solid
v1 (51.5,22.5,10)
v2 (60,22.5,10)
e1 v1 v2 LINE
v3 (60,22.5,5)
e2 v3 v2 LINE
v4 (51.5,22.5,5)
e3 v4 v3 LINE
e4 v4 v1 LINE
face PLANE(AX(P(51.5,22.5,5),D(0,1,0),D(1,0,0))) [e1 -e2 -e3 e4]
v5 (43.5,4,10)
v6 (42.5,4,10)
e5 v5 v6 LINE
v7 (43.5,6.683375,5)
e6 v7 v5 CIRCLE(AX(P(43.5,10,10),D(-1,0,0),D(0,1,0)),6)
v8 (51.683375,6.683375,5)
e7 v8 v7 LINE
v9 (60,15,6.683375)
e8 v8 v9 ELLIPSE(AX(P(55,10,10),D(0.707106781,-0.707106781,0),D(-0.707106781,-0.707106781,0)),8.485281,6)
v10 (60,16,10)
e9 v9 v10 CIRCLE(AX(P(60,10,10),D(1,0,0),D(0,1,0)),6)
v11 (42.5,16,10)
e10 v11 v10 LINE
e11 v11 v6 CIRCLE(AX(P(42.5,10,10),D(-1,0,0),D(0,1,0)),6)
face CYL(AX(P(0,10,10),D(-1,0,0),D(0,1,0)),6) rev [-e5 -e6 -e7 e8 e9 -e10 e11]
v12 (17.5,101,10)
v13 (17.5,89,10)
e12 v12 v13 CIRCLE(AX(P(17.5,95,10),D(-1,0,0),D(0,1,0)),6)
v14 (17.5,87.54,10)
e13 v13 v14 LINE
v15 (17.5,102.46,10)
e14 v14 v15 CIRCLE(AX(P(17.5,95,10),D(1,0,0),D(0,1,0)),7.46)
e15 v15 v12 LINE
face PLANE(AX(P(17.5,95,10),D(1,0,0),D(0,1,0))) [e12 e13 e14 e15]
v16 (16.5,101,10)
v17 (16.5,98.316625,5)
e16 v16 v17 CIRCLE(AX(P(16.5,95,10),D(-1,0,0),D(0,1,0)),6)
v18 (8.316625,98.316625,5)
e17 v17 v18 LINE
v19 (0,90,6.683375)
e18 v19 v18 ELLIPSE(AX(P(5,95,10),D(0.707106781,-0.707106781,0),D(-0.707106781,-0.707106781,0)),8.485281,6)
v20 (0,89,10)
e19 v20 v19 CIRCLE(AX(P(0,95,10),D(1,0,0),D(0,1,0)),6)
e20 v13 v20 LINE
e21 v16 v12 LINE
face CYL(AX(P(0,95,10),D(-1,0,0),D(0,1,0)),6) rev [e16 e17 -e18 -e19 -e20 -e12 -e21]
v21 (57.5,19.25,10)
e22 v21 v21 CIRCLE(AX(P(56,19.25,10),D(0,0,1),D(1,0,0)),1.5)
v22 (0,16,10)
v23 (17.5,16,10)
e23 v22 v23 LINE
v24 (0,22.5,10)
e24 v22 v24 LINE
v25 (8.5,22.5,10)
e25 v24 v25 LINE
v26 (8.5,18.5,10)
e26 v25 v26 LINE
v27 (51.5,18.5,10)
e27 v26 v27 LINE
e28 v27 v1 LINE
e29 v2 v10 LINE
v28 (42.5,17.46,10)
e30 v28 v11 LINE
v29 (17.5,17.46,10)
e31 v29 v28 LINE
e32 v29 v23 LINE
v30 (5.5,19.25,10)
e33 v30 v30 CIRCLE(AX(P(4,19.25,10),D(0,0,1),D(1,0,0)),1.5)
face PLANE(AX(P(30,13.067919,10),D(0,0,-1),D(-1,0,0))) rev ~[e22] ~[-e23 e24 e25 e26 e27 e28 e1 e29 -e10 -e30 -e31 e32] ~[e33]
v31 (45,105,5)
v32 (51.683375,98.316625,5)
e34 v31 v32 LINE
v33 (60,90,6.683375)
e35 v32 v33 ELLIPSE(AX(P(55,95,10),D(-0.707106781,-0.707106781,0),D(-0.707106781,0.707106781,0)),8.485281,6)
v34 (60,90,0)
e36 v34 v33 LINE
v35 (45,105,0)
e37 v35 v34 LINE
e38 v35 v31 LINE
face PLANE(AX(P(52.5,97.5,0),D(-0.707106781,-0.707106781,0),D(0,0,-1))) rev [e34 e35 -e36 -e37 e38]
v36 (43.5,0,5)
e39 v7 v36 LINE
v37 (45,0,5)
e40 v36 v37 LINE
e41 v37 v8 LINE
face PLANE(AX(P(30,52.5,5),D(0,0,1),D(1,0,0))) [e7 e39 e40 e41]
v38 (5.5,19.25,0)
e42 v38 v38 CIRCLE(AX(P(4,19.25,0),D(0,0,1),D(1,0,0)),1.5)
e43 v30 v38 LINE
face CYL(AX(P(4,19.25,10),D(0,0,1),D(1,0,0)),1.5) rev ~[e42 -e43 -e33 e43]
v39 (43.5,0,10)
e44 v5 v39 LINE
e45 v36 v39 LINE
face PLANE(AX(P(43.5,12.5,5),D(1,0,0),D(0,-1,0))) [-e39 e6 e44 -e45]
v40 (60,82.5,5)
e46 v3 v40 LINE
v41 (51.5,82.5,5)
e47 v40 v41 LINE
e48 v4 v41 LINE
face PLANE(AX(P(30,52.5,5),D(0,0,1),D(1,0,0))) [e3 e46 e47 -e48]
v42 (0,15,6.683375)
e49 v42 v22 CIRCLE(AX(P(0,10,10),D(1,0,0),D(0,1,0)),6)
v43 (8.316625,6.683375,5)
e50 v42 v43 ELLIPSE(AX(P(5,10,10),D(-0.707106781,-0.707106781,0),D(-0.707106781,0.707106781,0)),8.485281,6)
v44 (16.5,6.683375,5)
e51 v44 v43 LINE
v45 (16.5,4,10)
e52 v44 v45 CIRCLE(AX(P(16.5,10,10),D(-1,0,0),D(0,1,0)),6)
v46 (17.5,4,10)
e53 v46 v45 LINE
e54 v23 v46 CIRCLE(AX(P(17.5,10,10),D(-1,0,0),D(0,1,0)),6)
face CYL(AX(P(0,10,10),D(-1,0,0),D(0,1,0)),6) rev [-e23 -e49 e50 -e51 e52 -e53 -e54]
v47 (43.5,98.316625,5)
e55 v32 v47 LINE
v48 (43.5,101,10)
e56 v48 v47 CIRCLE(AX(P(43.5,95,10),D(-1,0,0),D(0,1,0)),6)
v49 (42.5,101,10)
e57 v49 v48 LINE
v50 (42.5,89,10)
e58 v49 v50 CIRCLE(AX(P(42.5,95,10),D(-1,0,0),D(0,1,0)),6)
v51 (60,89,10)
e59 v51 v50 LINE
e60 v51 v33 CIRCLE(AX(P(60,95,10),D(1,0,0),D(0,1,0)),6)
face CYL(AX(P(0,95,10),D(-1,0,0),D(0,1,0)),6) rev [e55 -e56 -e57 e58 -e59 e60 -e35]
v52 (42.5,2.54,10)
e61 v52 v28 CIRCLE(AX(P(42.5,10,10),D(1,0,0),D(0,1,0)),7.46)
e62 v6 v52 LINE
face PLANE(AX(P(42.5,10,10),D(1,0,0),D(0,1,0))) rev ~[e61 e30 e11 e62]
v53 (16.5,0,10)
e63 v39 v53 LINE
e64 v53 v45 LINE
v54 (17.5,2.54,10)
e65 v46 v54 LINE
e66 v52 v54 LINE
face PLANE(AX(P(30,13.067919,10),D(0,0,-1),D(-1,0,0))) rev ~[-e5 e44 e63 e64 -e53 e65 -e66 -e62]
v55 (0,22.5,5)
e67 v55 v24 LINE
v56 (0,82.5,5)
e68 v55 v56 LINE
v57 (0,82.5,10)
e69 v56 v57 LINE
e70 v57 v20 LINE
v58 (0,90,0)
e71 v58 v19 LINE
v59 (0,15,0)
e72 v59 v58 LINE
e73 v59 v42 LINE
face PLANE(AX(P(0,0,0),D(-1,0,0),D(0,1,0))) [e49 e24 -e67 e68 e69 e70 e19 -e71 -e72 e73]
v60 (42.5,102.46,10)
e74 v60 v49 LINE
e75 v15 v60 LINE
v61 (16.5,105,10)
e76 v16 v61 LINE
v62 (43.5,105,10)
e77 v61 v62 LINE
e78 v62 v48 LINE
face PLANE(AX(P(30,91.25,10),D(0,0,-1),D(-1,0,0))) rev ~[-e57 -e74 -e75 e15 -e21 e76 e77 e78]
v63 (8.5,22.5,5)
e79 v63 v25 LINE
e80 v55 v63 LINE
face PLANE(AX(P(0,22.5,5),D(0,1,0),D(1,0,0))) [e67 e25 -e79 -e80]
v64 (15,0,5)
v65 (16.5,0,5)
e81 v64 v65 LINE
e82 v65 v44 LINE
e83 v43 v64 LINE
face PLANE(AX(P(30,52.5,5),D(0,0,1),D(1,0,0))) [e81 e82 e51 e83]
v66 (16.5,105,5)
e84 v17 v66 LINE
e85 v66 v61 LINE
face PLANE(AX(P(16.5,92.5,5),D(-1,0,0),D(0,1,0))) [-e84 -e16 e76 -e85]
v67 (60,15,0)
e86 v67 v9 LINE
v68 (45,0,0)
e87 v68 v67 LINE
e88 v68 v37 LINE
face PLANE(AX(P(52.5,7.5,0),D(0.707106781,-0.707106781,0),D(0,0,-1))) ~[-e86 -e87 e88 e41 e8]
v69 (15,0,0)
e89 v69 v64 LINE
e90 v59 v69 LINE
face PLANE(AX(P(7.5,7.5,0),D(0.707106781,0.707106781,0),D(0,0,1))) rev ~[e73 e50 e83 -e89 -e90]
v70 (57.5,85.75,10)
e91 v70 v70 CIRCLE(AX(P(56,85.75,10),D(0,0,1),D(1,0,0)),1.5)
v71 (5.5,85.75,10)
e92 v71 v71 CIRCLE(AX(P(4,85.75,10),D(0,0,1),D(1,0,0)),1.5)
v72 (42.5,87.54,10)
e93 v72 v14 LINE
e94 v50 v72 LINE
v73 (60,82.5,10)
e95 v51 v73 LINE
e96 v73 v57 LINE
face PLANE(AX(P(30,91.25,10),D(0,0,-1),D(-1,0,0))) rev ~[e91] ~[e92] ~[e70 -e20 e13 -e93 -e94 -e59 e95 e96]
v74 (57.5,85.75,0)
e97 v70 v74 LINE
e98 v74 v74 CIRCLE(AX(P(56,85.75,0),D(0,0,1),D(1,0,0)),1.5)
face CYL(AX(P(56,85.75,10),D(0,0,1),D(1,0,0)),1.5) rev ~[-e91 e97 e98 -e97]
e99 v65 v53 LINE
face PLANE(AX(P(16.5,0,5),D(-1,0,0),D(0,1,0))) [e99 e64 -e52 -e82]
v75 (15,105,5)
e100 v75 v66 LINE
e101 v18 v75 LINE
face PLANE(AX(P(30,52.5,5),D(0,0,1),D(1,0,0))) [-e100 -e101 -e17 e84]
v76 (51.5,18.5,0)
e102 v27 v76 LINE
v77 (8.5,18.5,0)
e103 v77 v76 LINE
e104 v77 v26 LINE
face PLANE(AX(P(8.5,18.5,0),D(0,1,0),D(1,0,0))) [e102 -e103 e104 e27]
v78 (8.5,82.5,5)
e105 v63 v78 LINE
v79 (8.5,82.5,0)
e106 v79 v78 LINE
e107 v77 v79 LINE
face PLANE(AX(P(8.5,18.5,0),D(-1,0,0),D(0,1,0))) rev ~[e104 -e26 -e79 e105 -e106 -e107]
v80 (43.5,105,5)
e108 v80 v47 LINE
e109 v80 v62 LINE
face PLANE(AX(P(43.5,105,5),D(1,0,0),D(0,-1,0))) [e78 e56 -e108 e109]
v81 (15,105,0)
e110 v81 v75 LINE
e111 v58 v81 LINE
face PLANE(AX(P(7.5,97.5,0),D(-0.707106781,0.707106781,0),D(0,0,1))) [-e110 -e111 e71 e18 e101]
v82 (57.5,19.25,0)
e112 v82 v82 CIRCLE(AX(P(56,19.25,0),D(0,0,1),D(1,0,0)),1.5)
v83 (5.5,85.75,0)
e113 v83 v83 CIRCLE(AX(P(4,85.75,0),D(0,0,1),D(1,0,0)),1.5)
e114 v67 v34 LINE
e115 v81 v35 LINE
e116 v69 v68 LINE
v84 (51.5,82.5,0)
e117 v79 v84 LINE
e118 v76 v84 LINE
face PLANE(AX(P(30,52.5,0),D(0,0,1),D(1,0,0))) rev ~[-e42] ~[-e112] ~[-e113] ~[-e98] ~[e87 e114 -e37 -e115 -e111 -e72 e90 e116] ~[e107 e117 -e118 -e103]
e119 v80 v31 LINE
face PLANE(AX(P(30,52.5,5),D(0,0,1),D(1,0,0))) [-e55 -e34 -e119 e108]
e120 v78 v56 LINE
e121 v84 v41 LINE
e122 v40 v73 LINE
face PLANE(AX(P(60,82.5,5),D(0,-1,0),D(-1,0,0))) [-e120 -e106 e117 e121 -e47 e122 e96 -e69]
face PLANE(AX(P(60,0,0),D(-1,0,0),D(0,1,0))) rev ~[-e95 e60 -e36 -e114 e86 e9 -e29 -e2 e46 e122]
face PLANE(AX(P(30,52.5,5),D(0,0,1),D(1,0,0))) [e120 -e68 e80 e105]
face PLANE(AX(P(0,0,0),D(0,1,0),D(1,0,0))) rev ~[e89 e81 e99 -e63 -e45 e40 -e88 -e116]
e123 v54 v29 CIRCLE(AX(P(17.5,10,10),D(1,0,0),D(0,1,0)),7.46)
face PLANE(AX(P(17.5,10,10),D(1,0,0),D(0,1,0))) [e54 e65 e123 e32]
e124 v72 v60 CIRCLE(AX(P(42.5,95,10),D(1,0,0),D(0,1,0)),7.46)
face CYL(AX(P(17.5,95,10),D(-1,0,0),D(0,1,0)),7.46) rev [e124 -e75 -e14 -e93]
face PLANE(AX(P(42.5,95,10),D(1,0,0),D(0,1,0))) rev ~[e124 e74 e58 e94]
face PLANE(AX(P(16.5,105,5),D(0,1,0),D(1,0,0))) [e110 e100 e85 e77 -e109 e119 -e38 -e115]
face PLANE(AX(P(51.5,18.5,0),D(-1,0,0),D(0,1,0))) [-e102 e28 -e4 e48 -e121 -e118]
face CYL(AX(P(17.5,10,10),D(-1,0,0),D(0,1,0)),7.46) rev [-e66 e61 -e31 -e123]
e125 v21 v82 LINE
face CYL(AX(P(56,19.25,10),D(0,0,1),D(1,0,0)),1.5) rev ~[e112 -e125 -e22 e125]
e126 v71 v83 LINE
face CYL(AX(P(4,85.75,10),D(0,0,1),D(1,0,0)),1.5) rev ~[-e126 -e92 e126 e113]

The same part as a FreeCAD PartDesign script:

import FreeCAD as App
import Part
import Sketcher
from FreeCAD import Vector
Q = App.Units.Quantity


def edges_at(feature, points):
    """Names of the edges that pass closest to the given points."""
    edges = feature.Shape.Edges
    near = lambda p: min(range(len(edges)), key=lambda i: edges[i].distToShape(Part.Vertex(*p))[0])
    return sorted({f"Edge{near(p) + 1}" for p in points})


def add_polygon(sketch, points):
    """Adds a closed chain of lines whose ends are joined by coincident constraints."""
    first, n = sketch.GeometryCount, len(points)
    for a, b in zip(points, points[1:] + points[:1]):
        sketch.addGeometry(Part.LineSegment(App.Vector(*a, 0), App.Vector(*b, 0)), False)
    for i in range(n):
        sketch.addConstraint(Sketcher.Constraint("Coincident", first + i, 2, first + (i + 1) % n, 1))

doc = App.newDocument("Part")
body = doc.addObject("PartDesign::Body", "Body")
body.AllowCompound = True

# Sketch on YZ plane
sketch1 = body.newObject("Sketcher::SketchObject", "Sketch")
sketch1.AttachmentSupport = (doc.getObject("YZ_Plane"), [""])
sketch1.MapMode = "FlatFace"
sketch1.addGeometry([
    Part.Circle(Vector(10, 10, 0), Vector(0, 0, 1), 6),
    Part.Circle(Vector(95, 10, 0), Vector(0, 0, 1), 6),
], False)
sketch1.addConstraint([
    Sketcher.Constraint("Equal", 0, 1),
    Sketcher.Constraint("Horizontal", 0, 3, 1, 3),
    Sketcher.Constraint("Diameter", 0, Q("12 mm")),
    Sketcher.Constraint("DistanceX", -1, 1, 0, 3, Q("10 mm")),
    Sketcher.Constraint("DistanceY", -1, 1, 0, 3, Q("10 mm")),
    Sketcher.Constraint("DistanceX", -1, 1, 1, 3, Q("95 mm")),
])
pad1 = body.newObject("PartDesign::Pad", "Pad")
pad1.Profile = sketch1
pad1.Length = 60
body2 = doc.addObject("PartDesign::Body", "Body001")
body2.AllowCompound = True

# Sketch on XY plane
sketch2 = body2.newObject("Sketcher::SketchObject", "Sketch001")
sketch2.AttachmentSupport = (doc.getObject("XY_Plane001"), [""])
sketch2.MapMode = "FlatFace"
sketch2.AttachmentOffset = App.Placement(Vector(0, 0, 10), App.Rotation())
sketch2.addGeometry([
    Part.Circle(Vector(4, 19.2, 0), Vector(0, 0, 1), 1.5),
    Part.Circle(Vector(56, 19.2, 0), Vector(0, 0, 1), 1.5),
    Part.Circle(Vector(56, 85.8, 0), Vector(0, 0, 1), 1.5),
    Part.Circle(Vector(4, 85.8, 0), Vector(0, 0, 1), 1.5),
], False)
sketch2.addConstraint([
    Sketcher.Constraint("Equal", 0, 1),
    Sketcher.Constraint("Equal", 1, 2),
    Sketcher.Constraint("Equal", 2, 3),
    Sketcher.Constraint("Horizontal", 0, 3, 1, 3),
    Sketcher.Constraint("Horizontal", 2, 3, 3, 3),
    Sketcher.Constraint("Vertical", 1, 3, 2, 3),
    Sketcher.Constraint("Vertical", 0, 3, 3, 3),
    Sketcher.Constraint("Diameter", 0, Q("3 mm")),
    Sketcher.Constraint("DistanceX", -1, 1, 0, 3, Q("4 mm")),
    Sketcher.Constraint("DistanceX", -1, 1, 1, 3, Q("56 mm")),
    Sketcher.Constraint("DistanceY", 1, 3, 2, 3, Q("66.5 mm")),
    Sketcher.Constraint("DistanceY", -1, 1, 0, 3, Q("19.25 mm")),
])
pad2 = body2.newObject("PartDesign::Pad", "Pad001")
pad2.Profile = sketch2
pad2.Length = 10
pad2.Reversed = True
body3 = doc.addObject("PartDesign::Body", "Body002")
body3.AllowCompound = True

# Sketch on YZ plane
sketch3 = body3.newObject("Sketcher::SketchObject", "Sketch002")
sketch3.AttachmentSupport = (doc.getObject("YZ_Plane002"), [""])
sketch3.MapMode = "FlatFace"
sketch3.AttachmentOffset = App.Placement(Vector(0, 0, 17.5), App.Rotation())
sketch3.addGeometry([
    Part.Circle(Vector(10, 10, 0), Vector(0, 0, 1), 7),
    Part.Circle(Vector(95, 10, 0), Vector(0, 0, 1), 7),
], False)
sketch3.addConstraint([
    Sketcher.Constraint("Equal", 0, 1),
    Sketcher.Constraint("Horizontal", 0, 3, 1, 3),
    Sketcher.Constraint("Diameter", 0, Q("14.92 mm")),
    Sketcher.Constraint("DistanceX", -1, 1, 0, 3, Q("10 mm")),
    Sketcher.Constraint("DistanceY", -1, 1, 0, 3, Q("10 mm")),
    Sketcher.Constraint("DistanceX", -1, 1, 1, 3, Q("95 mm")),
])
pad3 = body3.newObject("PartDesign::Pad", "Pad002")
pad3.Profile = sketch3
pad3.Length = 25
doc.recompute()

boolean = body3.newObject("PartDesign::Boolean", "Boolean")
boolean.Type = "Fuse"
boolean.addObjects([body])
doc.recompute()

boolean2 = body3.newObject("PartDesign::Boolean", "Boolean001")
boolean2.Type = "Fuse"
boolean2.addObjects([body2])
body4 = doc.addObject("PartDesign::Body", "Body003")

# Sketch on XY plane
sketch4 = body4.newObject("Sketcher::SketchObject", "Sketch003")
sketch4.AttachmentSupport = (doc.getObject("XY_Plane003"), [""])
sketch4.MapMode = "FlatFace"
add_polygon(sketch4, [(0, 105), (0, 0), (60, 0), (60, 105)])  # lines 0-3
add_polygon(sketch4, [(52, 18), (8, 18), (8, 82), (52, 82)])  # lines 4-7
sketch4.addConstraint([
    Sketcher.Constraint("Vertical", 0),
    Sketcher.Constraint("Horizontal", 1),
    Sketcher.Constraint("Vertical", 2),
    Sketcher.Constraint("Horizontal", 3),
    Sketcher.Constraint("Horizontal", 4),
    Sketcher.Constraint("Vertical", 5),
    Sketcher.Constraint("Horizontal", 6),
    Sketcher.Constraint("Vertical", 7),
    Sketcher.Constraint("Coincident", 0, 2, -1, 1),
    Sketcher.Constraint("DistanceX", 1, 1, 1, 2, Q("60 mm")),
    Sketcher.Constraint("DistanceX", 4, 2, 4, 1, Q("43 mm")),
    Sketcher.Constraint("DistanceY", 0, 2, 0, 1, Q("105 mm")),
    Sketcher.Constraint("DistanceY", 5, 1, 5, 2, Q("64 mm")),
    Sketcher.Constraint("DistanceX", -1, 1, 4, 2, Q("8.5 mm")),
    Sketcher.Constraint("DistanceY", -1, 1, 4, 2, Q("18.5 mm")),
])
pad4 = body4.newObject("PartDesign::Pad", "Pad003")
pad4.Profile = sketch4
pad4.Length = 5
body5 = doc.addObject("PartDesign::Body", "Body004")
doc.recompute()

body5.BaseFeature = body4
doc.recompute()

# Sketch on XY plane
sketch5 = body5.newObject("Sketcher::SketchObject", "Sketch004")
sketch5.AttachmentSupport = (doc.getObject("XY_Plane004"), [""])
sketch5.MapMode = "FlatFace"
sketch5.AttachmentOffset = App.Placement(Vector(0, 0, 5), App.Rotation())
add_polygon(sketch5, [(43.5, 105), (16.5, 105), (16.5, 92.5), (0, 92.5), (0, 82.5), (60, 82.5), (60, 92.5), (43.5, 92.5)])  # lines 0-7
add_polygon(sketch5, [(16.5, 0), (43.5, 0), (43.5, 12.5), (60, 12.5), (60, 22.5), (51.5, 22.5), (51.5, 18.5), (8.5, 18.5), (8.5, 22.5), (0, 22.5), (0, 12.5), (16.5, 12.5)])  # lines 8-19
sketch5.addConstraint([
    Sketcher.Constraint("Horizontal", 0),
    Sketcher.Constraint("Vertical", 1),
    Sketcher.Constraint("Horizontal", 2),
    Sketcher.Constraint("Vertical", 3),
    Sketcher.Constraint("Horizontal", 4),
    Sketcher.Constraint("Vertical", 5),
    Sketcher.Constraint("Horizontal", 6),
    Sketcher.Constraint("Vertical", 7),
    Sketcher.Constraint("Horizontal", 8),
    Sketcher.Constraint("Vertical", 9),
    Sketcher.Constraint("Horizontal", 10),
    Sketcher.Constraint("Vertical", 11),
    Sketcher.Constraint("Horizontal", 12),
    Sketcher.Constraint("Vertical", 13),
    Sketcher.Constraint("Horizontal", 14),
    Sketcher.Constraint("Vertical", 15),
    Sketcher.Constraint("Horizontal", 16),
    Sketcher.Constraint("Vertical", 17),
    Sketcher.Constraint("Horizontal", 18),
    Sketcher.Constraint("Vertical", 19),
    Sketcher.Constraint("PointOnObject", 2, 2, -2),
    Sketcher.Constraint("PointOnObject", 8, 2, -1),
    Sketcher.Constraint("PointOnObject", 16, 2, -2),
    Sketcher.Constraint("Horizontal", 2, 2, 5, 2),
    Sketcher.Constraint("Horizontal", 12, 2, 15, 2),
    Sketcher.Constraint("Horizontal", 10, 2, 17, 2),
    Sketcher.Constraint("Vertical", 7, 2, 8, 2),
    Sketcher.Constraint("Vertical", 5, 2, 10, 2),
    Sketcher.Constraint("Vertical", 1, 2, 18, 2),
    Sketcher.Constraint("Equal", 2, 6),
    Sketcher.Constraint("Equal", 12, 16),
    Sketcher.Constraint("Equal", 7, 9),
    Sketcher.Constraint("Equal", 5, 11),
    Sketcher.Constraint("DistanceX", 0, 2, 0, 1, Q("27 mm")),
    Sketcher.Constraint("DistanceX", 4, 1, 4, 2, Q("60 mm")),
    Sketcher.Constraint("DistanceX", 14, 2, 14, 1, Q("43 mm")),
    Sketcher.Constraint("DistanceY", 3, 2, 3, 1, Q("10 mm")),
    Sketcher.Constraint("DistanceY", 13, 2, 13, 1, Q("4 mm")),
    Sketcher.Constraint("DistanceY", 1, 2, 1, 1, Q("12.5 mm")),
    Sketcher.Constraint("DistanceY", -1, 1, 0, 2, Q("105 mm")),
])
pad5 = body5.newObject("PartDesign::Pad", "Pad004")
pad5.Profile = sketch5
pad5.Length = 5
doc.recompute()

boolean3 = body5.newObject("PartDesign::Boolean", "Boolean002")
boolean3.Type = "Fuse"
boolean3.addObjects([body4])
doc.recompute()

boolean4 = body5.newObject("PartDesign::Boolean", "Boolean003")
boolean4.Type = "Cut"
boolean4.addObjects([body3])
doc.recompute()

chamfer = body5.newObject("PartDesign::Chamfer", "Chamfer")
chamfer.Base = (boolean4, edges_at(boolean4, [
    (60, 105, 2.5),
    (0, 105, 2.5),
    (60, 0, 2.5),
    (0, 0, 2.5),
]))
chamfer.Size = 15

doc.recompute()
